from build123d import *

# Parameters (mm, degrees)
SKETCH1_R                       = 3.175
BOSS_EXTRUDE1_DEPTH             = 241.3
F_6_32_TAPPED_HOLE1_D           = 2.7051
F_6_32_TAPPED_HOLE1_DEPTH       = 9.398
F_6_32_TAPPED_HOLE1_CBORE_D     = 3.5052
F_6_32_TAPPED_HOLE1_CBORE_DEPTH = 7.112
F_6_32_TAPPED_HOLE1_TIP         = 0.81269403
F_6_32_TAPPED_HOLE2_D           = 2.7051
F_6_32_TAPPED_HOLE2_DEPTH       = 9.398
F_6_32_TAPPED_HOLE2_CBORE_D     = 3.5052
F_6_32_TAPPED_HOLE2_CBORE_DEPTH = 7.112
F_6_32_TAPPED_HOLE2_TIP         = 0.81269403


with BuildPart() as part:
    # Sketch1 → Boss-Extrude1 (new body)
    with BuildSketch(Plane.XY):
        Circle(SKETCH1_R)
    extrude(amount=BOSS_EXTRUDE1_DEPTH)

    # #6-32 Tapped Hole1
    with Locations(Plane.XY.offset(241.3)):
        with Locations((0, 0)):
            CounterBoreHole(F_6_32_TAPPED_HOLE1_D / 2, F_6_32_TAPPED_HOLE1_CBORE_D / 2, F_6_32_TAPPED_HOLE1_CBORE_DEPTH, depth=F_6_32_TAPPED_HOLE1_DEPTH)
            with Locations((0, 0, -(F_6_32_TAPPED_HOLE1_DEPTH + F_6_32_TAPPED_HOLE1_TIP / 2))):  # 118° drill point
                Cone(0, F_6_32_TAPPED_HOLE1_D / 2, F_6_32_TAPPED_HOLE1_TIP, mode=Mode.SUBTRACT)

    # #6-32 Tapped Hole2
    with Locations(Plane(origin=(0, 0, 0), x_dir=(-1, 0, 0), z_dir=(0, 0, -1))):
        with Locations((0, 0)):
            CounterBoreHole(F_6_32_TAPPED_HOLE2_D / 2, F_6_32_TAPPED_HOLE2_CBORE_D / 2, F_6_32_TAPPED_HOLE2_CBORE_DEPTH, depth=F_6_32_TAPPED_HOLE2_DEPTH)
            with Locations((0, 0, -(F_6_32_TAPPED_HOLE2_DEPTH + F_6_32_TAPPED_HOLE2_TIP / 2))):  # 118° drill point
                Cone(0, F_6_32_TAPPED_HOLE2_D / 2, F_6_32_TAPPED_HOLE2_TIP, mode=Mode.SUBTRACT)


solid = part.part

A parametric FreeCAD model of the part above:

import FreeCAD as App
import Part
import Sketcher
Q = App.Units.Quantity

doc = App.newDocument("Part")
body = doc.addObject("PartDesign::Body", "Body")

# Sketch on XY plane
sketch1 = body.newObject("Sketcher::SketchObject", "Sketch")
sketch1.AttachmentSupport = (doc.getObject("XY_Plane"), [""])
sketch1.MapMode = "FlatFace"
sketch1.addGeometry(Part.Circle(App.Vector(0, 0, 0), App.Vector(0, 0, 1), 3.2), False)
sketch1.addConstraint(Sketcher.Constraint("Coincident", 0, 3, -1, 1))
sketch1.addConstraint(Sketcher.Constraint("Diameter", 0, Q("0.25 in")))
pad1 = body.newObject("PartDesign::Pad", "Pad")
pad1.Profile = sketch1
pad1.Length = Q("9.5 in")

# Sketch on XY plane
sketch2 = body.newObject("Sketcher::SketchObject", "Sketch001")
sketch2.AttachmentSupport = (doc.getObject("XY_Plane"), [""])
sketch2.MapMode = "FlatFace"
sketch2.AttachmentOffset = App.Placement(App.Vector(0, 0, 9.5 * 25.4), App.Rotation())
sketch2.addGeometry(Part.Circle(App.Vector(0, 0, 0), App.Vector(0, 0, 1), 1.4), False)
sketch2.addConstraint(Sketcher.Constraint("Coincident", 0, 3, -1, 1))
sketch2.addConstraint(Sketcher.Constraint("Diameter", 0, Q("0.1065 in")))
doc.recompute()
hole = body.newObject("PartDesign::Hole", "Hole")
hole.Profile = sketch2
hole.ThreadType = "None"
hole.Diameter = Q("0.1065 in")
hole.DepthType = "Dimension"
hole.Depth = Q("0.37 in")
hole.DrillPoint = "Angled"
hole.DrillPointAngle = 118
hole.HoleCutType = "Counterbore"
hole.HoleCutDiameter = Q("0.138 in")
hole.HoleCutDepth = Q("0.28 in")

# Sketch on XY plane
sketch3 = body.newObject("Sketcher::SketchObject", "Sketch002")
sketch3.AttachmentSupport = (doc.getObject("XY_Plane"), [""])
sketch3.MapMode = "FlatFace"
sketch3.addGeometry(Part.Circle(App.Vector(0, 0, 0), App.Vector(0, 0, 1), 1.4), False)
sketch3.addConstraint(Sketcher.Constraint("Coincident", 0, 3, -1, 1))
sketch3.addConstraint(Sketcher.Constraint("Diameter", 0, Q("0.1065 in")))
doc.recompute()
hole2 = body.newObject("PartDesign::Hole", "Hole001")
hole2.Profile = sketch3
hole2.ThreadType = "None"
hole2.Diameter = Q("0.1065 in")
hole2.DepthType = "Dimension"
hole2.Depth = Q("0.37 in")
hole2.DrillPoint = "Angled"
hole2.DrillPointAngle = 118
hole2.HoleCutType = "Counterbore"
hole2.HoleCutDiameter = Q("0.138 in")
hole2.HoleCutDepth = Q("0.28 in")
hole2.Reversed = True

doc.recompute()
